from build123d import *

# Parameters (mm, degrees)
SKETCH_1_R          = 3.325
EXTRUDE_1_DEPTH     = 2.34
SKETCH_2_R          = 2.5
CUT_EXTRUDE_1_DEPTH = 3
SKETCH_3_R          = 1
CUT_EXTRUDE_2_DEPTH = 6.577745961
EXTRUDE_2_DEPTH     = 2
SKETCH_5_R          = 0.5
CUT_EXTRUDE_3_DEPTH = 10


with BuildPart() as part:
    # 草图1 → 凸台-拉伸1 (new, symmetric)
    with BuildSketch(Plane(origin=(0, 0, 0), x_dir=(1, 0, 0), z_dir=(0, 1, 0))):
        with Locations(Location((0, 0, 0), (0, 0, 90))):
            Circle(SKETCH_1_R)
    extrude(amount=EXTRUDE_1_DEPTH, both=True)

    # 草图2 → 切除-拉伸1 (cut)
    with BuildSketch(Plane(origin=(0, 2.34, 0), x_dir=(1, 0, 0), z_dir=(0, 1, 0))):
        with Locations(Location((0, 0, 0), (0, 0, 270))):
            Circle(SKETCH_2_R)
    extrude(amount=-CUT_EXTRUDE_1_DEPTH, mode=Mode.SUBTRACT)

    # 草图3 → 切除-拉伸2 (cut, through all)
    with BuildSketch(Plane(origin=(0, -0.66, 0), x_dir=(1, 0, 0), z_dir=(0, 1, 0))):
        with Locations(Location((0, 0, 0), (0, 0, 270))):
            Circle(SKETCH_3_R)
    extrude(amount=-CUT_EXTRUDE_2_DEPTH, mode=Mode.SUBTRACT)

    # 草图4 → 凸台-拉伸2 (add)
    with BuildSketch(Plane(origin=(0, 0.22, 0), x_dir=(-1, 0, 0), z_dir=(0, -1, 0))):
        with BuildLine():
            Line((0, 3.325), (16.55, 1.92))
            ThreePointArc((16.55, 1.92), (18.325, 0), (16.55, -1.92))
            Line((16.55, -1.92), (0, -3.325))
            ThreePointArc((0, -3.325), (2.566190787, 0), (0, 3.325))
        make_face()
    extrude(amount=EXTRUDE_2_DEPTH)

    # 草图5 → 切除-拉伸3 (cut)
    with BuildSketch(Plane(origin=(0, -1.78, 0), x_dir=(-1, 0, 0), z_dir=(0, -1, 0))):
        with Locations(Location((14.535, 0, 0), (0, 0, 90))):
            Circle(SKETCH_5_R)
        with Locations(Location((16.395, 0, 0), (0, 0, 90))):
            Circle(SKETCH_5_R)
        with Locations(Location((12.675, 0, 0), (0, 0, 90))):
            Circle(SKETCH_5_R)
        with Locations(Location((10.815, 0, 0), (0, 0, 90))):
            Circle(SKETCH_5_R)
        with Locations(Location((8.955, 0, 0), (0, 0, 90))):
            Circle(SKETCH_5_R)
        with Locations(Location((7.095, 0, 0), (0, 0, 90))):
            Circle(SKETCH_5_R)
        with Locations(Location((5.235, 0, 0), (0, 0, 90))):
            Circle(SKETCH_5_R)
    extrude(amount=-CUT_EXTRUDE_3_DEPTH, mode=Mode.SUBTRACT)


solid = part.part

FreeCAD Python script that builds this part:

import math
import FreeCAD as App
import Part
import Sketcher
from FreeCAD import Vector

doc = App.newDocument("Part")
body = doc.addObject("PartDesign::Body", "Body")

# Sketch on XZ plane
sketch1 = body.newObject("Sketcher::SketchObject", "Sketch")
sketch1.AttachmentSupport = (doc.getObject("XZ_Plane"), [""])
sketch1.MapMode = "FlatFace"
sketch1.addGeometry(Part.Circle(Vector(0, 0, 0), Vector(0, 0, 1), 3.3), False)
sketch1.addConstraint([
    Sketcher.Constraint("Coincident", 0, 3, -1, 1),
    Sketcher.Constraint("Diameter", 0, 6.65),
])
pad1 = body.newObject("PartDesign::Pad", "Pad")
pad1.Profile = sketch1
pad1.Length = 4.68
pad1.Midplane = True

# Sketch on XZ plane
sketch2 = body.newObject("Sketcher::SketchObject", "Sketch001")
sketch2.AttachmentSupport = (doc.getObject("XZ_Plane"), [""])
sketch2.MapMode = "FlatFace"
sketch2.AttachmentOffset = App.Placement(Vector(0, 0, -2.34), App.Rotation())
sketch2.addGeometry(Part.Circle(Vector(0, 0, 0), Vector(0, 0, 1), 2.5), False)
sketch2.addConstraint([
    Sketcher.Constraint("Coincident", 0, 3, -1, 1),
    Sketcher.Constraint("Diameter", 0, 5.0),
])
pocket1 = body.newObject("PartDesign::Pocket", "Pocket")
pocket1.Profile = sketch2
pocket1.Length = 3
pocket1.Reversed = True

# Sketch on XZ plane
sketch3 = body.newObject("Sketcher::SketchObject", "Sketch002")
sketch3.AttachmentSupport = (doc.getObject("XZ_Plane"), [""])
sketch3.MapMode = "FlatFace"
sketch3.AttachmentOffset = App.Placement(Vector(0, 0, 0.66), App.Rotation())
sketch3.addGeometry(Part.Circle(Vector(0, 0, 0), Vector(0, 0, 1), 1), False)
sketch3.addConstraint([
    Sketcher.Constraint("Coincident", 0, 3, -1, 1),
    Sketcher.Constraint("Diameter", 0, 2.0),
])
pocket2 = body.newObject("PartDesign::Pocket", "Pocket001")
pocket2.Profile = sketch3
pocket2.Type = "ThroughAll"
pocket2.Reversed = True

# Sketch on XZ plane
sketch4 = body.newObject("Sketcher::SketchObject", "Sketch003")
sketch4.AttachmentSupport = (doc.getObject("XZ_Plane"), [""])
sketch4.MapMode = "FlatFace"
sketch4.AttachmentOffset = App.Placement(Vector(0, 0, -0.22), App.Rotation())
sketch4.addGeometry([
    Part.LineSegment(Vector(-16.6, -1.9, 0), Vector(0, -3.3, 0)),
    Part.ArcOfCircle(Part.Circle(Vector(0.9, 0, 0), Vector(0, 0, 1), 3.4), math.radians(105), math.radians(255)),
    Part.LineSegment(Vector(0, 3.3, 0), Vector(-16.6, 1.9, 0)),
    Part.ArcOfCircle(Part.Circle(Vector(-16.4, 0, 0), Vector(0, 0, 1), 1.9), math.radians(94), math.radians(266)),
], False)
sketch4.addConstraint([
    Sketcher.Constraint("Coincident", 0, 2, 1, 2),
    Sketcher.Constraint("Coincident", 1, 1, 2, 1),
    Sketcher.Constraint("Coincident", 2, 2, 3, 1),
    Sketcher.Constraint("Coincident", 3, 2, 0, 1),
    Sketcher.Constraint("Symmetric", 0, 2, 1, 1, -1, 1),
    Sketcher.Constraint("Symmetric", 2, 2, 3, 2, -1),
    Sketcher.Constraint("PointOnObject", 1, 3, -1),
    Sketcher.Constraint("DistanceX", 2, 2, -1, 1, 16.55),
    Sketcher.Constraint("DistanceY", -1, 1, 2, 2, 1.92),
    Sketcher.Constraint("DistanceY", 0, 2, 1, 1, 6.65),
    Sketcher.Constraint("Radius", 1, 3.437188),
    Sketcher.Constraint("Radius", 3, 1.925923),
])
pad2 = body.newObject("PartDesign::Pad", "Pad001")
pad2.Profile = sketch4
pad2.Length = 2

# Sketch on XZ plane
sketch5 = body.newObject("Sketcher::SketchObject", "Sketch004")
sketch5.AttachmentSupport = (doc.getObject("XZ_Plane"), [""])
sketch5.MapMode = "FlatFace"
sketch5.AttachmentOffset = App.Placement(Vector(0, 0, 1.78), App.Rotation())
sketch5.addGeometry([
    Part.Circle(Vector(-14.5, 0, 0), Vector(0, 0, 1), 0.5),  # 0
    Part.Circle(Vector(-16.4, 0, 0), Vector(0, 0, 1), 0.5),  # 1
    Part.Circle(Vector(-12.7, 0, 0), Vector(0, 0, 1), 0.5),  # 2
    Part.Circle(Vector(-10.8, 0, 0), Vector(0, 0, 1), 0.5),  # 3
    Part.Circle(Vector(-9, 0, 0), Vector(0, 0, 1), 0.5),  # 4
    Part.Circle(Vector(-7.1, 0, 0), Vector(0, 0, 1), 0.5),  # 5
    Part.Circle(Vector(-5.2, 0, 0), Vector(0, 0, 1), 0.5),  # 6
], False)
sketch5.addConstraint([
    Sketcher.Constraint("Equal", 0, 1),
    Sketcher.Constraint("Equal", 1, 2),
    Sketcher.Constraint("Equal", 2, 3),
    Sketcher.Constraint("Equal", 3, 4),
    Sketcher.Constraint("Equal", 4, 5),
    Sketcher.Constraint("Equal", 5, 6),
    Sketcher.Constraint("PointOnObject", 0, 3, -1),
    Sketcher.Constraint("PointOnObject", 1, 3, -1),
    Sketcher.Constraint("PointOnObject", 2, 3, -1),
    Sketcher.Constraint("PointOnObject", 3, 3, -1),
    Sketcher.Constraint("PointOnObject", 4, 3, -1),
    Sketcher.Constraint("PointOnObject", 5, 3, -1),
    Sketcher.Constraint("PointOnObject", 6, 3, -1),
    Sketcher.Constraint("Diameter", 0, 1.0),
    Sketcher.Constraint("DistanceX", 1, 3, 5, 3, 9.3),
    Sketcher.Constraint("DistanceX", 0, 3, 6, 3, 9.3),
    Sketcher.Constraint("DistanceX", 1, 3, 0, 3, 1.86),
    Sketcher.Constraint("DistanceX", 0, 3, 2, 3, 1.86),
    Sketcher.Constraint("DistanceX", 2, 3, 3, 3, 1.86),
    Sketcher.Constraint("DistanceX", 3, 3, 4, 3, 1.86),
    Sketcher.Constraint("DistanceX", 0, 3, -1, 1, 14.535),
])
pocket3 = body.newObject("PartDesign::Pocket", "Pocket002")
pocket3.Profile = sketch5
pocket3.Length = 10

doc.recompute()
